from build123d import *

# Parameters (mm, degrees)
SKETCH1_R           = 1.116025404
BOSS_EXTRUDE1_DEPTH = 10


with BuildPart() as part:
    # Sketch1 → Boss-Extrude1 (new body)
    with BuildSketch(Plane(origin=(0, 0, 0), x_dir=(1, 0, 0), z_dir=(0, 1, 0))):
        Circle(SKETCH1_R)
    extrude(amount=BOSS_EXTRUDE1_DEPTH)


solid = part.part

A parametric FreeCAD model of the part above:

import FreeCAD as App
import Part
import Sketcher
from FreeCAD import Vector

doc = App.newDocument("Part")
params = doc.addObject("Spreadsheet::Sheet", "Params")
for row, (alias, value) in enumerate([
    ("pad1_length", "10 mm"),
], start=1):
    params.set(f"A{row}", alias)
    params.set(f"B{row}", "=" + value)
    params.setAlias(f"B{row}", alias)

body = doc.addObject("PartDesign::Body", "Body")

# Sketch on XZ plane
sketch1 = body.newObject("Sketcher::SketchObject", "Sketch")
sketch1.AttachmentSupport = (doc.getObject("XZ_Plane"), [""])
sketch1.MapMode = "FlatFace"
sketch1.addGeometry(Part.Circle(Vector(0, 0, 0), Vector(0, 0, 1), 1.1), False)
sketch1.addConstraint([
    Sketcher.Constraint("Coincident", 0, 3, -1, 1),
    Sketcher.Constraint("Diameter", 0, 2.232051),
])
pad1 = body.newObject("PartDesign::Pad", "Pad")
pad1.Profile = sketch1
pad1.setExpression("Length", "Params.pad1_length")
pad1.Reversed = True

doc.recompute()
